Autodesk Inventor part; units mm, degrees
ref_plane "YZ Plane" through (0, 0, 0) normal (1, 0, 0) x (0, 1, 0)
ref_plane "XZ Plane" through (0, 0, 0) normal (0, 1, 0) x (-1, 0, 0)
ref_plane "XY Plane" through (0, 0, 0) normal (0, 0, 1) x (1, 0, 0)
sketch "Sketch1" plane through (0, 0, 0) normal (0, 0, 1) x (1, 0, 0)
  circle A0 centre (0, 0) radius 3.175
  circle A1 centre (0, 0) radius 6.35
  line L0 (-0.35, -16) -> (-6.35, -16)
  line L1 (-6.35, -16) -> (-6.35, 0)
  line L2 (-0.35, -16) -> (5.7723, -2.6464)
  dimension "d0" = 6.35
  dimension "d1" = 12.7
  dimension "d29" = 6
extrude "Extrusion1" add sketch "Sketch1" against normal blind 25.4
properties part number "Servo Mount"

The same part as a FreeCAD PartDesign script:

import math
import FreeCAD as App
import Part
import Sketcher
Q = App.Units.Quantity

doc = App.newDocument("Part")
body = doc.addObject("PartDesign::Body", "Body")

# Sketch on XY plane
sketch1 = body.newObject("Sketcher::SketchObject", "Sketch")
sketch1.AttachmentSupport = (doc.getObject("XY_Plane"), [""])
sketch1.MapMode = "FlatFace"
sketch1.addGeometry([
    Part.ArcOfCircle(Part.Circle(App.Vector(0, 0, 0), App.Vector(0, 0, 1), 6.35), math.radians(-24.629819), math.radians(180)),  # 0
    Part.LineSegment(App.Vector(-6.35, 0, 0), App.Vector(-6.35, -16, 0)),  # 1
    Part.LineSegment(App.Vector(-6.35, -16, 0), App.Vector(-0.35, -16, 0)),  # 2
    Part.LineSegment(App.Vector(-0.35, -16, 0), App.Vector(5.7723, -2.6464, 0)),  # 3
    Part.Circle(App.Vector(0, 0, 0), App.Vector(0, 0, 1), 3.175),  # 4
], False)
sketch1.addConstraint([
    Sketcher.Constraint("Tangent", 0, 2, 1, 1),
    Sketcher.Constraint("Coincident", 1, 2, 2, 1),
    Sketcher.Constraint("Coincident", 2, 2, 3, 1),
    Sketcher.Constraint("Tangent", 3, 2, 0, 1),
    Sketcher.Constraint("Vertical", 1),
    Sketcher.Constraint("Horizontal", 2),
    Sketcher.Constraint("Coincident", 0, 3, -1, 1),
    Sketcher.Constraint("Coincident", 4, 3, -1, 1),
    Sketcher.Constraint("Diameter", 4, Q("0.25 in")),
    Sketcher.Constraint("Radius", 0, Q("0.25 in")),
    Sketcher.Constraint("DistanceX", 2, 1, 2, 2, 6.0),
    Sketcher.Constraint("Angle", 3, Q("65.3697 deg")),
])
pad1 = body.newObject("PartDesign::Pad", "Pad")
pad1.Profile = sketch1
pad1.Length = Q("1 in")
pad1.Reversed = True

doc.recompute()
